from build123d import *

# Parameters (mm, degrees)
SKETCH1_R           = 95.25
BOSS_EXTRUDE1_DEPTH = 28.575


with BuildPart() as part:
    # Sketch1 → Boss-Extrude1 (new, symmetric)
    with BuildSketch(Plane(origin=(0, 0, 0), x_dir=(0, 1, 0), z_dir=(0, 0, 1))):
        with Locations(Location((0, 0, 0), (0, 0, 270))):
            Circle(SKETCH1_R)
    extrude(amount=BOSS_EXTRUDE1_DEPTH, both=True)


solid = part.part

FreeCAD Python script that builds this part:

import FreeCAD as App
import Part
import Sketcher
from FreeCAD import Vector
Q = App.Units.Quantity

doc = App.newDocument("Part")
body = doc.addObject("PartDesign::Body", "Body")

# Sketch on XY plane
sketch1 = body.newObject("Sketcher::SketchObject", "Sketch")
sketch1.AttachmentSupport = (doc.getObject("XY_Plane"), [""])
sketch1.MapMode = "FlatFace"
sketch1.addGeometry(Part.Circle(Vector(0, 0, 0), Vector(0, 0, 1), 95), False)
sketch1.addConstraint([
    Sketcher.Constraint("Coincident", 0, 3, -1, 1),
    Sketcher.Constraint("Diameter", 0, Q("7.5 in")),
])
pad1 = body.newObject("PartDesign::Pad", "Pad")
pad1.Profile = sketch1
pad1.Length = Q("2.25 in")
pad1.Midplane = True

doc.recompute()
